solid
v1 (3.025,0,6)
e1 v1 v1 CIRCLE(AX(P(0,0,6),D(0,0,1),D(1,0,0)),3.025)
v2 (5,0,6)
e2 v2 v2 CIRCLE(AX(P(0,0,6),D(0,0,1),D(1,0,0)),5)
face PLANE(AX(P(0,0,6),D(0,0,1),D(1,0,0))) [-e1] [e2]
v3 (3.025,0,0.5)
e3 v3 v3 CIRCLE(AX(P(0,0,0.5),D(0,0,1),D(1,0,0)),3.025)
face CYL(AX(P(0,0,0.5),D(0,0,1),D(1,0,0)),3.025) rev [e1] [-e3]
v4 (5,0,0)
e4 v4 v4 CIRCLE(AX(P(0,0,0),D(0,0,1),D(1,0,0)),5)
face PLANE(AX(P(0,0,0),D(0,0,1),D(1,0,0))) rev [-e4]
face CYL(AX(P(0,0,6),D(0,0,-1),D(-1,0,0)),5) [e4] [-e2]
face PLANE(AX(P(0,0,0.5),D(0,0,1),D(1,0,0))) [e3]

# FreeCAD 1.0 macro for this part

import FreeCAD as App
import Part
import Sketcher

doc = App.newDocument("Part")
params = doc.addObject("Spreadsheet::Sheet", "Params")
for row, (alias, value) in enumerate([
    ("sketch1_diameter", "10 mm"),
    ("pad1_length", "6 mm"),
    ("sketch2_diameter", "6.05 mm"),
    ("pocket1_length", "5.5 mm"),
], start=1):
    params.set(f"A{row}", alias)
    params.set(f"B{row}", "=" + value)
    params.setAlias(f"B{row}", alias)

body = doc.addObject("PartDesign::Body", "Body")

# Sketch on XY plane
sketch1 = body.newObject("Sketcher::SketchObject", "Sketch")
sketch1.AttachmentSupport = (doc.getObject("XY_Plane"), [""])
sketch1.MapMode = "FlatFace"
sketch1.addGeometry(Part.Circle(App.Vector(0, 0, 0), App.Vector(0, 0, 1), 5), False)
sketch1.addConstraint([
    Sketcher.Constraint("Coincident", 0, 3, -1, 1),
    Sketcher.Constraint("Diameter", 0, 10.0),
])
sketch1.setExpression("Constraints[1]", "Params.sketch1_diameter")
pad1 = body.newObject("PartDesign::Pad", "Pad")
pad1.Profile = sketch1
pad1.setExpression("Length", "Params.pad1_length")

# Sketch on XY plane
sketch2 = body.newObject("Sketcher::SketchObject", "Sketch001")
sketch2.AttachmentSupport = (doc.getObject("XY_Plane"), [""])
sketch2.MapMode = "FlatFace"
sketch2.AttachmentOffset = App.Placement(App.Vector(0, 0, 6), App.Rotation())
sketch2.addGeometry(Part.Circle(App.Vector(0, 0, 0), App.Vector(0, 0, 1), 3), False)
sketch2.addConstraint([
    Sketcher.Constraint("Coincident", 0, 3, -1, 1),
    Sketcher.Constraint("Diameter", 0, 6.05),
])
sketch2.setExpression("Constraints[1]", "Params.sketch2_diameter")
pocket1 = body.newObject("PartDesign::Pocket", "Pocket")
pocket1.Profile = sketch2
pocket1.setExpression("Length", "Params.pocket1_length")

doc.recompute()
